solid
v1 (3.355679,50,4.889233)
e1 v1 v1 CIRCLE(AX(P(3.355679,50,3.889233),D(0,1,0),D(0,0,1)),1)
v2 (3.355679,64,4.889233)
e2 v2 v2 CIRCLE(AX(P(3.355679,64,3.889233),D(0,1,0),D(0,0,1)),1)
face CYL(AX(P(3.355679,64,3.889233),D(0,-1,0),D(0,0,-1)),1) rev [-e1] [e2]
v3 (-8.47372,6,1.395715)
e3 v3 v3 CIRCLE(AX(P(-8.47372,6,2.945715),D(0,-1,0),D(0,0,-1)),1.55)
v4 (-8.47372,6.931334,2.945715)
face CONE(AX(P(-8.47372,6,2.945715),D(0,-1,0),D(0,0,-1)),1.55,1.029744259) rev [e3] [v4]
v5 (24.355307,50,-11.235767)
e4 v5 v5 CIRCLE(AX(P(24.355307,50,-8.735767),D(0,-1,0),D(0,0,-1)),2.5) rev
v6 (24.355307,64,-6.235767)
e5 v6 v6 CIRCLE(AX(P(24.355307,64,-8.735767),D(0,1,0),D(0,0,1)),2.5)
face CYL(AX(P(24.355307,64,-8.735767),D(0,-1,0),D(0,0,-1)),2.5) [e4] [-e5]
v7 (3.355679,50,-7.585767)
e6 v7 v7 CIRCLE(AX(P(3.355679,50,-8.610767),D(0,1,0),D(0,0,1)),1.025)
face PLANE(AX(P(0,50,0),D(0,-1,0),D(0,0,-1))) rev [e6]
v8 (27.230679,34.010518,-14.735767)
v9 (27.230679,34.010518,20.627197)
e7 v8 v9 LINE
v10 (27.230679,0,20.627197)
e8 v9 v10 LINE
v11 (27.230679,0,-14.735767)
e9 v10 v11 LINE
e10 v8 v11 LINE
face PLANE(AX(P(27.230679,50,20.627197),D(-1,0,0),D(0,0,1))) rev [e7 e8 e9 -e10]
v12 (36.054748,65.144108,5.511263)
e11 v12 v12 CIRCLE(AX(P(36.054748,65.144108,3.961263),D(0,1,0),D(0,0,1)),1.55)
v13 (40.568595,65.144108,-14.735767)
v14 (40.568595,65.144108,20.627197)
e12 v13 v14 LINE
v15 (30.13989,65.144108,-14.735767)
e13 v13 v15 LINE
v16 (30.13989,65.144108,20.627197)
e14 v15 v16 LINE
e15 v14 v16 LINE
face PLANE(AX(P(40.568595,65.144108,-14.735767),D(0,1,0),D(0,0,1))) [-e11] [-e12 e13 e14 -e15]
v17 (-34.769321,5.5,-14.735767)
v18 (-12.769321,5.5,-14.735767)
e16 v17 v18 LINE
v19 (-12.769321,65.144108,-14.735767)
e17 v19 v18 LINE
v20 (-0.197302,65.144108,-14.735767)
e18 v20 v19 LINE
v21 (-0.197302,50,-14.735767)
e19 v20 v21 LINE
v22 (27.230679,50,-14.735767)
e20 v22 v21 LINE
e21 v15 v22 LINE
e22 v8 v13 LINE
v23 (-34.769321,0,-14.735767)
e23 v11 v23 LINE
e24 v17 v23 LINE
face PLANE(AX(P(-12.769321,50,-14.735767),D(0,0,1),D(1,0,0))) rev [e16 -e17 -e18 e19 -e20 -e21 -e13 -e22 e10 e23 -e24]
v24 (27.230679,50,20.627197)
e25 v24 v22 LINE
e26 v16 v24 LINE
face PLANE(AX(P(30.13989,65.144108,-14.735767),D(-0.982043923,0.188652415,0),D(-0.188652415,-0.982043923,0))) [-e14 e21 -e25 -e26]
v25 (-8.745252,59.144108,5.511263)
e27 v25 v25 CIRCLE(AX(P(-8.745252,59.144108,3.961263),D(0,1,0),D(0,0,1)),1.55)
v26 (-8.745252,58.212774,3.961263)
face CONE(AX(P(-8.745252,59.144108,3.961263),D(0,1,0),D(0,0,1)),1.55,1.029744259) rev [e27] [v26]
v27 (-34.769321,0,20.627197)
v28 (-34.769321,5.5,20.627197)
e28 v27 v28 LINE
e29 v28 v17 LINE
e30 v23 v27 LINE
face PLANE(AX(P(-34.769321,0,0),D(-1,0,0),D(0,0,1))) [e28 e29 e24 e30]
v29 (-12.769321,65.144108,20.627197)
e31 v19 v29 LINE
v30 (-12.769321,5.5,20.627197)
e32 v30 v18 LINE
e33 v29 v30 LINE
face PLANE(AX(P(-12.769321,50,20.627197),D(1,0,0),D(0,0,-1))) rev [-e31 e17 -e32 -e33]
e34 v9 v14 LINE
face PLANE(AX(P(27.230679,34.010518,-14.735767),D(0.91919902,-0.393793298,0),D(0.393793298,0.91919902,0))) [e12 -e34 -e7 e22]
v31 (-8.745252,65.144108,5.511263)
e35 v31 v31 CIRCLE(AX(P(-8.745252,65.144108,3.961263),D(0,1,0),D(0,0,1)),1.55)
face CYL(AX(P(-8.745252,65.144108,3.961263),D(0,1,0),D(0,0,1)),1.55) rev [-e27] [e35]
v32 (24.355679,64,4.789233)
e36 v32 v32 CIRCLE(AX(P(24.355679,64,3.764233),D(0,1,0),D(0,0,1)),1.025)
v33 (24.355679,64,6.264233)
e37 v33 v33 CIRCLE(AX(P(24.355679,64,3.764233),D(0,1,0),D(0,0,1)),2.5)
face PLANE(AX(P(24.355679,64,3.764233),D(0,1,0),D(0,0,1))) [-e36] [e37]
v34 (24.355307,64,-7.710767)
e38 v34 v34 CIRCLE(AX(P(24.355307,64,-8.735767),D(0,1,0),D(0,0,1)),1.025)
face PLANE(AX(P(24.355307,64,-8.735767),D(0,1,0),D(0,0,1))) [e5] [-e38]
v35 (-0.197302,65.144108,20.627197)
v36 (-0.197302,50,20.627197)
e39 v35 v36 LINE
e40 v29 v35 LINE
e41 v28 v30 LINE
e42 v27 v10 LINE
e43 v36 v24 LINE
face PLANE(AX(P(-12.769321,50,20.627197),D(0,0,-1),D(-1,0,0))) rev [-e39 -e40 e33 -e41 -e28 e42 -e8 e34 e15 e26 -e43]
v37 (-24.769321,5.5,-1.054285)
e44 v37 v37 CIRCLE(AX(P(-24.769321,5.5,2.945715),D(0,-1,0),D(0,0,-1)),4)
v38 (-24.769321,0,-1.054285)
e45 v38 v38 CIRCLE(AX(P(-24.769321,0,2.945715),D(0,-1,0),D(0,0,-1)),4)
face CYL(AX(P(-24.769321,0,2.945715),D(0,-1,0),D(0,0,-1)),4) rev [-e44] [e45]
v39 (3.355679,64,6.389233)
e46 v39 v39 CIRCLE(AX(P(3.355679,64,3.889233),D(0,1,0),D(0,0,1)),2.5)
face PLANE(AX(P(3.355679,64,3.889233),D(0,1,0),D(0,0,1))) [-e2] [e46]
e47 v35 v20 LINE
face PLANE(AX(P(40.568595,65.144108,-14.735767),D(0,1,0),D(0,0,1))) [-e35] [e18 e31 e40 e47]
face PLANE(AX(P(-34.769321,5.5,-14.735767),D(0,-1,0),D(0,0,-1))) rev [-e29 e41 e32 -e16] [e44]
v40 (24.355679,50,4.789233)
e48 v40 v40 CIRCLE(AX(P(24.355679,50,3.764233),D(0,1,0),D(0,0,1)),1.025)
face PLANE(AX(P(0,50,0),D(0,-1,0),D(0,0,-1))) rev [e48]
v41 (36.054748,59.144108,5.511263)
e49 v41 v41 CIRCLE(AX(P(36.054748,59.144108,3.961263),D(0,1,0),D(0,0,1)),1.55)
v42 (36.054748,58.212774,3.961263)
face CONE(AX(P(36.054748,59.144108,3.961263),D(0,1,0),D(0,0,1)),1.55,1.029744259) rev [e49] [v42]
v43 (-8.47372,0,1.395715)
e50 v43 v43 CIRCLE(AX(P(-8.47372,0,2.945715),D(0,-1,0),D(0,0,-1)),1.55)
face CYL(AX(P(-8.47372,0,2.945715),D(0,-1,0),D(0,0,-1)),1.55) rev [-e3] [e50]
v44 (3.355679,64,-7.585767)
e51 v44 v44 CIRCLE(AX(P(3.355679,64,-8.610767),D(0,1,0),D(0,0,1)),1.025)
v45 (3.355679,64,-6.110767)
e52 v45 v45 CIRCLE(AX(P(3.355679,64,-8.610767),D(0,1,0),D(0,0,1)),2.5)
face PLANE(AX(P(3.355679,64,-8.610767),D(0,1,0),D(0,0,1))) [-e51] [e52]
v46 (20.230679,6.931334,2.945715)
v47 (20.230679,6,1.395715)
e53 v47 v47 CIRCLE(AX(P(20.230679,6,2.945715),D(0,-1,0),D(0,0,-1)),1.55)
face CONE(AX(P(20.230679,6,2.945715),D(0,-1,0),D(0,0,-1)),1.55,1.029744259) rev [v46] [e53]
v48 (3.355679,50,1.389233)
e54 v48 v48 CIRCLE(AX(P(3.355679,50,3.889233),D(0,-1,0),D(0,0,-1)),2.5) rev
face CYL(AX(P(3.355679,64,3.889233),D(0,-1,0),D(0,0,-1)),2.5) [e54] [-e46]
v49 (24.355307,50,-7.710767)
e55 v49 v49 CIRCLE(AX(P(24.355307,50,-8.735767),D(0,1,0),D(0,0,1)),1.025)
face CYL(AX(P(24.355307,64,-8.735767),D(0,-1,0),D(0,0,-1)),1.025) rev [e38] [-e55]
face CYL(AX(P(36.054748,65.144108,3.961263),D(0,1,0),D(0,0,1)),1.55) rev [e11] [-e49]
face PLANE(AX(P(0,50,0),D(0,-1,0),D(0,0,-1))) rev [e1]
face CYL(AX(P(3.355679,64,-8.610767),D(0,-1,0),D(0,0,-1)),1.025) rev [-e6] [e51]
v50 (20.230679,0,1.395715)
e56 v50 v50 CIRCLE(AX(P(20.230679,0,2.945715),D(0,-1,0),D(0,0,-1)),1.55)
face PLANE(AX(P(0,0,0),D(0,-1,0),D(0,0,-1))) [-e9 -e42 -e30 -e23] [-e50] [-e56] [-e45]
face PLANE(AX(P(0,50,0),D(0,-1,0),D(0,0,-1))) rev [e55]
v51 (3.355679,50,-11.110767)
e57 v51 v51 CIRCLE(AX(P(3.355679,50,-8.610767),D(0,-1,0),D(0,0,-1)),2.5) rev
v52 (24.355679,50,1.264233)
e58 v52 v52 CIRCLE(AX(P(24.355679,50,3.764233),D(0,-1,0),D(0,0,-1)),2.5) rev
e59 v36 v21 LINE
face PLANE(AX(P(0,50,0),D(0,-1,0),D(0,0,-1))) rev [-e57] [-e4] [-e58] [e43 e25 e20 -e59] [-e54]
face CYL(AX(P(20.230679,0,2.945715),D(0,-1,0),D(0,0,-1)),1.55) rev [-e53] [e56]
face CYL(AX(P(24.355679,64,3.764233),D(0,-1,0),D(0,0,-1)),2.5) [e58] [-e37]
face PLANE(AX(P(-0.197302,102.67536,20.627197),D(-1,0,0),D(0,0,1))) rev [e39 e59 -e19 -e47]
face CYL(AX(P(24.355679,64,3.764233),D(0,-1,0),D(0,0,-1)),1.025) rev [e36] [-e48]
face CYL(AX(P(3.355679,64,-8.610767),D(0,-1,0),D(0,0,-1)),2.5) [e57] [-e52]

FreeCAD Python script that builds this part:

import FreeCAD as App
import Part
import Sketcher

V = App.Vector
Q = App.Units.Quantity

doc = App.newDocument("Part")
body = doc.addObject("PartDesign::Body", "Body")

# Sketch on XZ plane
sketch1 = body.newObject("Sketcher::SketchObject", "Sketch")
sketch1.AttachmentSupport = (doc.getObject("XZ_Plane"), [""])
sketch1.MapMode = "FlatFace"
sketch1.addGeometry(Part.LineSegment(V(-12.769321, -14.735767, 0), V(-12.769321, 20.627197, 0)), False)
sketch1.addGeometry(Part.LineSegment(V(-12.769321, 20.627197, 0), V(27.230679, 20.627197, 0)), False)
sketch1.addGeometry(Part.LineSegment(V(27.230679, 20.627197, 0), V(27.230679, -14.735767, 0)), False)
sketch1.addGeometry(Part.LineSegment(V(27.230679, -14.735767, 0), V(-12.769321, -14.735767, 0)), False)
sketch1.addConstraint(Sketcher.Constraint("Coincident", 0, 2, 1, 1))
sketch1.addConstraint(Sketcher.Constraint("Coincident", 1, 2, 2, 1))
sketch1.addConstraint(Sketcher.Constraint("Coincident", 2, 2, 3, 1))
sketch1.addConstraint(Sketcher.Constraint("Coincident", 3, 2, 0, 1))
sketch1.addConstraint(Sketcher.Constraint("Vertical", 0))
sketch1.addConstraint(Sketcher.Constraint("Horizontal", 1))
sketch1.addConstraint(Sketcher.Constraint("Vertical", 2))
sketch1.addConstraint(Sketcher.Constraint("Horizontal", 3))
sketch1.addConstraint(Sketcher.Constraint("DistanceX", 1, 1, 1, 2, Q("40 mm")))
sketch1.addConstraint(Sketcher.Constraint("DistanceY", 0, 1, 0, 2, Q("35.362964 mm")))
sketch1.addConstraint(Sketcher.Constraint("DistanceX", 0, 2, -1, 1, Q("12.769321 mm")))
sketch1.addConstraint(Sketcher.Constraint("DistanceY", -1, 1, 0, 2, Q("20.627197 mm")))
pad1 = body.newObject("PartDesign::Pad", "Pad")
pad1.Profile = sketch1
pad1.Length = 50
pad1.Reversed = True

# Sketch on YZ plane
sketch2 = body.newObject("Sketcher::SketchObject", "Sketch001")
sketch2.AttachmentSupport = (doc.getObject("YZ_Plane"), [""])
sketch2.MapMode = "FlatFace"
sketch2.AttachmentOffset = App.Placement(V(0, 0, -12.769321), App.Rotation())
sketch2.addGeometry(Part.LineSegment(V(5.5, -14.735767, 0), V(0, -14.735767, 0)), False)
sketch2.addGeometry(Part.LineSegment(V(0, -14.735767, 0), V(0, 20.627197, 0)), False)
sketch2.addGeometry(Part.LineSegment(V(0, 20.627197, 0), V(5.5, 20.627197, 0)), False)
sketch2.addGeometry(Part.LineSegment(V(5.5, 20.627197, 0), V(5.5, -14.735767, 0)), False)
sketch2.addConstraint(Sketcher.Constraint("Coincident", 0, 2, 1, 1))
sketch2.addConstraint(Sketcher.Constraint("Coincident", 1, 2, 2, 1))
sketch2.addConstraint(Sketcher.Constraint("Coincident", 2, 2, 3, 1))
sketch2.addConstraint(Sketcher.Constraint("Coincident", 3, 2, 0, 1))
sketch2.addConstraint(Sketcher.Constraint("Horizontal", 0))
sketch2.addConstraint(Sketcher.Constraint("Vertical", 1))
sketch2.addConstraint(Sketcher.Constraint("Horizontal", 2))
sketch2.addConstraint(Sketcher.Constraint("Vertical", 3))
sketch2.addConstraint(Sketcher.Constraint("PointOnObject", 0, 2, -2))
sketch2.addConstraint(Sketcher.Constraint("DistanceX", 0, 2, 0, 1, Q("5.5 mm")))
sketch2.addConstraint(Sketcher.Constraint("DistanceY", 1, 1, 1, 2, Q("35.362964 mm")))
sketch2.addConstraint(Sketcher.Constraint("DistanceY", 0, 2, -1, 1, Q("14.735767 mm")))
pad2 = body.newObject("PartDesign::Pad", "Pad001")
pad2.Profile = sketch2
pad2.Length = 22
pad2.Reversed = True

# Sketch on XZ plane
sketch3 = body.newObject("Sketcher::SketchObject", "Sketch002")
sketch3.AttachmentSupport = (doc.getObject("XZ_Plane"), [""])
sketch3.MapMode = "FlatFace"
sketch3.AttachmentOffset = App.Placement(V(0, 0, -50), App.Rotation())
sketch3.addGeometry(Part.Circle(V(3.355679, 3.889233, 0), V(0, 0, 1), 2.5), False)
sketch3.addGeometry(Part.Circle(V(3.355679, 3.889233, 0), V(0, 0, 1), 1), False)
sketch3.addGeometry(Part.Circle(V(24.355679, 3.764233, 0), V(0, 0, 1), 2.5), False)
sketch3.addGeometry(Part.Circle(V(24.355679, 3.764233, 0), V(0, 0, 1), 1.025), False)
sketch3.addGeometry(Part.Circle(V(3.355679, -8.610767, 0), V(0, 0, 1), 2.5), False)
sketch3.addGeometry(Part.Circle(V(3.355679, -8.610767, 0), V(0, 0, 1), 1.025), False)
sketch3.addGeometry(Part.Circle(V(24.355307, -8.735767, 0), V(0, 0, 1), 2.5), False)
sketch3.addGeometry(Part.Circle(V(24.355307, -8.735767, 0), V(0, 0, 1), 1.025), False)
sketch3.addConstraint(Sketcher.Constraint("Coincident", 1, 3, 0, 3))
sketch3.addConstraint(Sketcher.Constraint("Coincident", 3, 3, 2, 3))
sketch3.addConstraint(Sketcher.Constraint("Coincident", 5, 3, 4, 3))
sketch3.addConstraint(Sketcher.Constraint("Coincident", 7, 3, 6, 3))
sketch3.addConstraint(Sketcher.Constraint("Equal", 0, 2))
sketch3.addConstraint(Sketcher.Constraint("Equal", 2, 4))
sketch3.addConstraint(Sketcher.Constraint("Equal", 3, 5))
sketch3.addConstraint(Sketcher.Constraint("Equal", 4, 6))
sketch3.addConstraint(Sketcher.Constraint("Equal", 5, 7))
sketch3.addConstraint(Sketcher.Constraint("Vertical", 1, 3, 4, 3))
sketch3.addConstraint(Sketcher.Constraint("Diameter", 0, Q("5 mm")))
sketch3.addConstraint(Sketcher.Constraint("Diameter", 1, Q("2 mm")))
sketch3.addConstraint(Sketcher.Constraint("Diameter", 3, Q("2.05 mm")))
sketch3.addConstraint(Sketcher.Constraint("DistanceX", 0, 3, 2, 3, Q("21 mm")))
sketch3.addConstraint(Sketcher.Constraint("DistanceY", 4, 3, 0, 3, Q("12.5 mm")))
sketch3.addConstraint(Sketcher.Constraint("DistanceY", 6, 3, 2, 3, Q("12.5 mm")))
sketch3.addConstraint(Sketcher.Constraint("DistanceY", 2, 3, 0, 3, Q("0.125 mm")))
sketch3.addConstraint(Sketcher.Constraint("DistanceX", -1, 1, 0, 3, Q("3.355679 mm")))
sketch3.addConstraint(Sketcher.Constraint("DistanceY", -1, 1, 0, 3, Q("3.889233 mm")))
sketch3.addConstraint(Sketcher.Constraint("DistanceX", -1, 1, 6, 3, Q("24.355307 mm")))
pad3 = body.newObject("PartDesign::Pad", "Pad002")
pad3.Profile = sketch3
pad3.Length = 14
pad3.Reversed = True

# Sketch on XZ plane
sketch4 = body.newObject("Sketcher::SketchObject", "Sketch003")
sketch4.AttachmentSupport = (doc.getObject("XZ_Plane"), [""])
sketch4.MapMode = "FlatFace"
sketch4.addGeometry(Part.Circle(V(-24.769321, 2.945715, 0), V(0, 0, 1), 4), False)
sketch4.addConstraint(Sketcher.Constraint("Diameter", 0, Q("8 mm")))
sketch4.addConstraint(Sketcher.Constraint("DistanceX", 0, 3, -1, 1, Q("24.769321 mm")))
sketch4.addConstraint(Sketcher.Constraint("DistanceY", -1, 1, 0, 3, Q("2.945715 mm")))
doc.recompute()
hole = body.newObject("PartDesign::Hole", "Hole")
hole.Profile = sketch4
hole.ThreadType = "None"
hole.Diameter = 8
hole.DepthType = "ThroughAll"

# Sketch on XY plane
sketch5 = body.newObject("Sketcher::SketchObject", "Sketch004")
sketch5.AttachmentSupport = (doc.getObject("XY_Plane"), [""])
sketch5.MapMode = "FlatFace"
sketch5.AttachmentOffset = App.Placement(V(0, 0, 20.627197), App.Rotation())
sketch5.addGeometry(Part.LineSegment(V(27.230679, 34.010518, 0), V(40.568595, 65.144108, 0)), False)
sketch5.addGeometry(Part.LineSegment(V(40.568595, 65.144108, 0), V(30.13989, 65.144108, 0)), False)
sketch5.addGeometry(Part.LineSegment(V(30.13989, 65.144108, 0), V(27.230679, 50, 0)), False)
sketch5.addGeometry(Part.LineSegment(V(27.230679, 50, 0), V(27.230679, 34.010518, 0)), False)
sketch5.addConstraint(Sketcher.Constraint("Coincident", 0, 2, 1, 1))
sketch5.addConstraint(Sketcher.Constraint("Coincident", 1, 2, 2, 1))
sketch5.addConstraint(Sketcher.Constraint("Coincident", 2, 2, 3, 1))
sketch5.addConstraint(Sketcher.Constraint("Coincident", 3, 2, 0, 1))
sketch5.addConstraint(Sketcher.Constraint("Horizontal", 1))
sketch5.addConstraint(Sketcher.Constraint("Vertical", 3))
sketch5.addConstraint(Sketcher.Constraint("DistanceY", -1, 1, 2, 2, Q("50 mm")))
sketch5.addConstraint(Sketcher.Constraint("DistanceY", 3, 2, 3, 1, Q("15.989482 mm")))
sketch5.addConstraint(Sketcher.Constraint("Distance", 2, Q("15.421008 mm")))
sketch5.addConstraint(Sketcher.Constraint("DistanceX", 1, 2, 1, 1, Q("10.428705 mm")))
sketch5.addConstraint(Sketcher.Constraint("DistanceX", -1, 1, 1, 2, Q("30.13989 mm")))
sketch5.addConstraint(Sketcher.Constraint("DistanceX", -1, 1, 2, 2, Q("27.230679 mm")))
pad4 = body.newObject("PartDesign::Pad", "Pad003")
pad4.Profile = sketch5
pad4.Length = 35.362964
pad4.Reversed = True

# Sketch on XZ plane
sketch6 = body.newObject("Sketcher::SketchObject", "Sketch005")
sketch6.AttachmentSupport = (doc.getObject("XZ_Plane"), [""])
sketch6.MapMode = "FlatFace"
sketch6.AttachmentOffset = App.Placement(V(0, 0, -50), App.Rotation())
sketch6.addGeometry(Part.LineSegment(V(-12.769321, -14.735767, 0), V(-12.769321, 20.627197, 0)), False)
sketch6.addGeometry(Part.LineSegment(V(-12.769321, 20.627197, 0), V(-0.197302, 20.627197, 0)), False)
sketch6.addGeometry(Part.LineSegment(V(-0.197302, 20.627197, 0), V(-0.197302, -14.735767, 0)), False)
sketch6.addGeometry(Part.LineSegment(V(-0.197302, -14.735767, 0), V(-12.769321, -14.735767, 0)), False)
sketch6.addConstraint(Sketcher.Constraint("Coincident", 0, 2, 1, 1))
sketch6.addConstraint(Sketcher.Constraint("Coincident", 1, 2, 2, 1))
sketch6.addConstraint(Sketcher.Constraint("Coincident", 2, 2, 3, 1))
sketch6.addConstraint(Sketcher.Constraint("Coincident", 3, 2, 0, 1))
sketch6.addConstraint(Sketcher.Constraint("Vertical", 0))
sketch6.addConstraint(Sketcher.Constraint("Horizontal", 1))
sketch6.addConstraint(Sketcher.Constraint("Vertical", 2))
sketch6.addConstraint(Sketcher.Constraint("Horizontal", 3))
sketch6.addConstraint(Sketcher.Constraint("DistanceX", 1, 1, 1, 2, Q("12.572019 mm")))
sketch6.addConstraint(Sketcher.Constraint("DistanceX", 1, 2, -1, 1, Q("0.197302 mm")))
sketch6.addConstraint(Sketcher.Constraint("DistanceY", 0, 1, 0, 2, Q("35.362964 mm")))
sketch6.addConstraint(Sketcher.Constraint("DistanceY", -1, 1, 0, 2, Q("20.627197 mm")))
pad5 = body.newObject("PartDesign::Pad", "Pad004")
pad5.Profile = sketch6
pad5.Length = 15.144108
pad5.Reversed = True

# Sketch on XZ plane
sketch7 = body.newObject("Sketcher::SketchObject", "Sketch006")
sketch7.AttachmentSupport = (doc.getObject("XZ_Plane"), [""])
sketch7.MapMode = "FlatFace"
sketch7.AttachmentOffset = App.Placement(V(0, 0, -65.144108), App.Rotation())
sketch7.addGeometry(Part.Circle(V(-8.745252, 3.961263, 0), V(0, 0, 1), 1.55), False)
sketch7.addGeometry(Part.Circle(V(36.054748, 3.961263, 0), V(0, 0, 1), 1.55), False)
sketch7.addConstraint(Sketcher.Constraint("Equal", 0, 1))
sketch7.addConstraint(Sketcher.Constraint("Horizontal", 0, 3, 1, 3))
sketch7.addConstraint(Sketcher.Constraint("Diameter", 0, Q("3.1 mm")))
sketch7.addConstraint(Sketcher.Constraint("DistanceX", 0, 3, 1, 3, Q("44.8 mm")))
sketch7.addConstraint(Sketcher.Constraint("DistanceX", 0, 3, -1, 1, Q("8.745252 mm")))
sketch7.addConstraint(Sketcher.Constraint("DistanceY", -1, 1, 0, 3, Q("3.961263 mm")))
doc.recompute()
hole2 = body.newObject("PartDesign::Hole", "Hole001")
hole2.Profile = sketch7
hole2.ThreadType = "None"
hole2.Diameter = 3.1
hole2.DepthType = "Dimension"
hole2.Depth = 6
hole2.DrillPoint = "Angled"
hole2.DrillPointAngle = 118
hole2.Reversed = True

# Sketch on XZ plane
sketch8 = body.newObject("Sketcher::SketchObject", "Sketch007")
sketch8.AttachmentSupport = (doc.getObject("XZ_Plane"), [""])
sketch8.MapMode = "FlatFace"
sketch8.addGeometry(Part.Circle(V(-8.47372, 2.945715, 0), V(0, 0, 1), 1.55), False)
sketch8.addGeometry(Part.Circle(V(20.230679, 2.945715, 0), V(0, 0, 1), 1.55), False)
sketch8.addConstraint(Sketcher.Constraint("Equal", 0, 1))
sketch8.addConstraint(Sketcher.Constraint("Horizontal", 0, 3, 1, 3))
sketch8.addConstraint(Sketcher.Constraint("Diameter", 0, Q("3.1 mm")))
sketch8.addConstraint(Sketcher.Constraint("DistanceX", 0, 3, 1, 3, Q("28.704399 mm")))
sketch8.addConstraint(Sketcher.Constraint("DistanceX", 0, 3, -1, 1, Q("8.47372 mm")))
sketch8.addConstraint(Sketcher.Constraint("DistanceY", -1, 1, 0, 3, Q("2.945715 mm")))
doc.recompute()
hole3 = body.newObject("PartDesign::Hole", "Hole002")
hole3.Profile = sketch8
hole3.ThreadType = "None"
hole3.Diameter = 3.1
hole3.DepthType = "Dimension"
hole3.Depth = 6
hole3.DrillPoint = "Angled"
hole3.DrillPointAngle = 118

doc.recompute()
